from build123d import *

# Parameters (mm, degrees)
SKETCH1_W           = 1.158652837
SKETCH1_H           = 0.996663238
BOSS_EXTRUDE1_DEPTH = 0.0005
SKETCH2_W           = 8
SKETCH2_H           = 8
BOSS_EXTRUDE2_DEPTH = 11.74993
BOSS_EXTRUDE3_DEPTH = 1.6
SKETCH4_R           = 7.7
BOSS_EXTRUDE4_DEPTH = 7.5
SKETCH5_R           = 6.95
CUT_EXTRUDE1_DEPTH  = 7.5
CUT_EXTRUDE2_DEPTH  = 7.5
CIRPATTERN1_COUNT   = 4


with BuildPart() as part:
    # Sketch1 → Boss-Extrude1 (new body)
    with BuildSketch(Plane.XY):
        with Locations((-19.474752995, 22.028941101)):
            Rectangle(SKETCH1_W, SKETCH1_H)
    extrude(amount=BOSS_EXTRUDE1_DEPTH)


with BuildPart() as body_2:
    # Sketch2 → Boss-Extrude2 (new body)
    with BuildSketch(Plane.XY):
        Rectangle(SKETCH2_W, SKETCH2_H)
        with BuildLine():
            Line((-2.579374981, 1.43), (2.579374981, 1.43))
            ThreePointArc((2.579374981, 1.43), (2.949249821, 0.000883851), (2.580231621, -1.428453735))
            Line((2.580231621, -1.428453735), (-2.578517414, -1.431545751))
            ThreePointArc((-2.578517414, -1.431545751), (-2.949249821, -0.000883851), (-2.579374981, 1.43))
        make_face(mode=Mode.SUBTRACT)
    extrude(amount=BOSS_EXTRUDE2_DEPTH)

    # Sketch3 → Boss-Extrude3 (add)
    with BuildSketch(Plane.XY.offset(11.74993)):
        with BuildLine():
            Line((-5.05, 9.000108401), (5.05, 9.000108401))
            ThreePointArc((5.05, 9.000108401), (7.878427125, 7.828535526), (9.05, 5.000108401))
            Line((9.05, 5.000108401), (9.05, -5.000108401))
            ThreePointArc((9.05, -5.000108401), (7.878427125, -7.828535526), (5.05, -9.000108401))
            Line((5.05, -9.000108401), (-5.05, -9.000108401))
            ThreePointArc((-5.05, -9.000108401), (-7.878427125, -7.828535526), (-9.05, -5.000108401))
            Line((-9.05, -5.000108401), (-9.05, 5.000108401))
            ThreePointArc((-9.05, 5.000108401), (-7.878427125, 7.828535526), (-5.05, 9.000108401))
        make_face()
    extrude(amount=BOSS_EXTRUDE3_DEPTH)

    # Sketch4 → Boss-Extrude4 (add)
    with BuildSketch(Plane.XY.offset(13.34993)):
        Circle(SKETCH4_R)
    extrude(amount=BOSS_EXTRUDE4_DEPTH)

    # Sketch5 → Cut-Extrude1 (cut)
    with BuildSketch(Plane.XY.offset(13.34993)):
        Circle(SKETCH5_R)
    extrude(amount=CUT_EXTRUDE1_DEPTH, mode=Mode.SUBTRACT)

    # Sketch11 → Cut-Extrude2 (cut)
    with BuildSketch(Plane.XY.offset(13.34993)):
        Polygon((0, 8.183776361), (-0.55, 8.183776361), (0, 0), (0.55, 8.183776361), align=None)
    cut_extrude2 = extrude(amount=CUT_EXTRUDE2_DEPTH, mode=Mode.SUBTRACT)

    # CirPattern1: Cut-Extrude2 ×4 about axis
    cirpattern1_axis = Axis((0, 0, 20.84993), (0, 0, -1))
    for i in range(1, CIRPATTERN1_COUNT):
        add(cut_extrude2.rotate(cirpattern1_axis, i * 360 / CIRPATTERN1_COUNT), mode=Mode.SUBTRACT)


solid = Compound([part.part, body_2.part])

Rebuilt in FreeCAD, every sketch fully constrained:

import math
import FreeCAD as App
import Part
import Sketcher
Q = App.Units.Quantity

doc = App.newDocument("Part")
params = doc.addObject("Spreadsheet::Sheet", "Params")
for row, (alias, value) in enumerate([
    ("pad1_length", "0.0005 mm"),
    ("sketch2_width", "8 mm"),
    ("pad2_length", "11.74993 mm"),
    ("sketch3_radius", "4 mm"),
    ("sketch3_width", "10.1 mm"),
    ("pad3_length", "1.6 mm"),
    ("sketch4_diameter", "15.4 mm"),
    ("pad4_length", "7.5 mm"),
    ("sketch5_diameter", "13.9 mm"),
    ("pocket1_length", "7.5 mm"),
    ("sketch6_width", "1.1 mm"),
    ("pocket2_length", "7.5 mm"),
], start=1):
    params.set(f"A{row}", alias)
    params.set(f"B{row}", "=" + value)
    params.setAlias(f"B{row}", alias)

body = doc.addObject("PartDesign::Body", "Body")

sketch1 = body.newObject("Sketcher::SketchObject", "Sketch")
sketch1.AttachmentSupport = (doc.getObject("XY_Plane"), [""])
sketch1.MapMode = "FlatFace"
sketch1.addGeometry(Part.LineSegment(App.Vector(-20.1, 22.5, 0), App.Vector(-20.1, 21.5, 0)), False)
sketch1.addGeometry(Part.LineSegment(App.Vector(-20.1, 21.5, 0), App.Vector(-18.9, 21.5, 0)), False)
sketch1.addGeometry(Part.LineSegment(App.Vector(-18.9, 21.5, 0), App.Vector(-18.9, 22.5, 0)), False)
sketch1.addGeometry(Part.LineSegment(App.Vector(-18.9, 22.5, 0), App.Vector(-20.1, 22.5, 0)), False)
sketch1.addConstraint(Sketcher.Constraint("Coincident", 0, 2, 1, 1))
sketch1.addConstraint(Sketcher.Constraint("Coincident", 1, 2, 2, 1))
sketch1.addConstraint(Sketcher.Constraint("Coincident", 2, 2, 3, 1))
sketch1.addConstraint(Sketcher.Constraint("Coincident", 3, 2, 0, 1))
sketch1.addConstraint(Sketcher.Constraint("Vertical", 0))
sketch1.addConstraint(Sketcher.Constraint("Horizontal", 1))
sketch1.addConstraint(Sketcher.Constraint("Vertical", 2))
sketch1.addConstraint(Sketcher.Constraint("Horizontal", 3))
sketch1.addConstraint(Sketcher.Constraint("DistanceX", 1, 1, 1, 2, Q("1.158653 mm")))
sketch1.addConstraint(Sketcher.Constraint("DistanceY", 0, 2, 0, 1, Q("0.996663 mm")))
sketch1.addConstraint(Sketcher.Constraint("DistanceX", 0, 2, -1, 1, Q("20.054079 mm")))
sketch1.addConstraint(Sketcher.Constraint("DistanceY", -1, 1, 0, 2, Q("21.530609 mm")))
pad1 = body.newObject("PartDesign::Pad", "Pad")
pad1.Profile = sketch1
pad1.setExpression("Length", "Params.pad1_length")
body2 = doc.addObject("PartDesign::Body", "Body001")

sketch2 = body2.newObject("Sketcher::SketchObject", "Sketch001")
sketch2.AttachmentSupport = (doc.getObject("XY_Plane001"), [""])
sketch2.MapMode = "FlatFace"
sketch2.addGeometry(Part.LineSegment(App.Vector(-4, 4, 0), App.Vector(-4, -4, 0)), False)
sketch2.addGeometry(Part.LineSegment(App.Vector(-4, -4, 0), App.Vector(4, -4, 0)), False)
sketch2.addGeometry(Part.LineSegment(App.Vector(4, -4, 0), App.Vector(4, 4, 0)), False)
sketch2.addGeometry(Part.LineSegment(App.Vector(4, 4, 0), App.Vector(-4, 4, 0)), False)
sketch2.addGeometry(Part.ArcOfCircle(Part.Circle(App.Vector(0, 0, 0), App.Vector(0, 0, 1), 2.9), math.radians(151), math.radians(209)), False)
sketch2.addGeometry(Part.LineSegment(App.Vector(-2.6, 1.4, 0), App.Vector(2.6, 1.4, 0)), False)
sketch2.addGeometry(Part.ArcOfCircle(Part.Circle(App.Vector(0, 0, 0), App.Vector(0, 0, 1), 2.9), math.radians(-29), math.radians(29)), False)
sketch2.addGeometry(Part.LineSegment(App.Vector(2.6, -1.4, 0), App.Vector(-2.6, -1.4, 0)), False)
sketch2.addConstraint(Sketcher.Constraint("Coincident", 0, 2, 1, 1))
sketch2.addConstraint(Sketcher.Constraint("Coincident", 1, 2, 2, 1))
sketch2.addConstraint(Sketcher.Constraint("Coincident", 2, 2, 3, 1))
sketch2.addConstraint(Sketcher.Constraint("Coincident", 3, 2, 0, 1))
sketch2.addConstraint(Sketcher.Constraint("Coincident", 4, 1, 5, 1))
sketch2.addConstraint(Sketcher.Constraint("Coincident", 5, 2, 6, 2))
sketch2.addConstraint(Sketcher.Constraint("Coincident", 6, 1, 7, 1))
sketch2.addConstraint(Sketcher.Constraint("Coincident", 7, 2, 4, 2))
sketch2.addConstraint(Sketcher.Constraint("Vertical", 0))
sketch2.addConstraint(Sketcher.Constraint("Horizontal", 1))
sketch2.addConstraint(Sketcher.Constraint("Vertical", 2))
sketch2.addConstraint(Sketcher.Constraint("Horizontal", 3))
sketch2.addConstraint(Sketcher.Constraint("Horizontal", 5))
sketch2.addConstraint(Sketcher.Constraint("Coincident", 4, 3, -1, 1))
sketch2.addConstraint(Sketcher.Constraint("Coincident", 6, 3, -1, 1))
sketch2.addConstraint(Sketcher.Constraint("Equal", 4, 6))
sketch2.addConstraint(Sketcher.Constraint("Symmetric", 0, 2, 2, 2, -1, 1))
sketch2.addConstraint(Sketcher.Constraint("Equal", 3, 0))
sketch2.addConstraint(Sketcher.Constraint("DistanceX", 1, 1, 1, 2, Q("8 mm")))
sketch2.addConstraint(Sketcher.Constraint("DistanceY", -1, 1, 4, 1, Q("1.43 mm")))
sketch2.addConstraint(Sketcher.Constraint("Radius", 4, Q("2.94925 mm")))
sketch2.addConstraint(Sketcher.Constraint("Distance", 7, Q("5.15875 mm")))
sketch2.addConstraint(Sketcher.Constraint("DistanceX", -1, 1, 6, 1, Q("2.580232 mm")))
sketch2.setExpression("Constraints[18]", "Params.sketch2_width")
pad2 = body2.newObject("PartDesign::Pad", "Pad001")
pad2.Profile = sketch2
pad2.setExpression("Length", "Params.pad2_length")

sketch3 = body2.newObject("Sketcher::SketchObject", "Sketch002")
sketch3.AttachmentSupport = (doc.getObject("XY_Plane001"), [""])
sketch3.MapMode = "FlatFace"
sketch3.AttachmentOffset = App.Placement(App.Vector(0, 0, 11.74993), App.Rotation())
sketch3.addGeometry(Part.LineSegment(App.Vector(5, 9, 0), App.Vector(-5, 9, 0)), False)
sketch3.addGeometry(Part.ArcOfCircle(Part.Circle(App.Vector(-5.1, 5, 0), App.Vector(0, 0, 1), 4), math.radians(90), math.radians(180)), False)
sketch3.addGeometry(Part.LineSegment(App.Vector(-9.1, 5, 0), App.Vector(-9.1, -5, 0)), False)
sketch3.addGeometry(Part.ArcOfCircle(Part.Circle(App.Vector(-5.1, -5, 0), App.Vector(0, 0, 1), 4), math.radians(180), math.radians(270)), False)
sketch3.addGeometry(Part.LineSegment(App.Vector(-5, -9, 0), App.Vector(5, -9, 0)), False)
sketch3.addGeometry(Part.ArcOfCircle(Part.Circle(App.Vector(5.1, -5, 0), App.Vector(0, 0, 1), 4), math.radians(-90), math.radians(0)), False)
sketch3.addGeometry(Part.LineSegment(App.Vector(9.1, -5, 0), App.Vector(9.1, 5, 0)), False)
sketch3.addGeometry(Part.ArcOfCircle(Part.Circle(App.Vector(5.1, 5, 0), App.Vector(0, 0, 1), 4), math.radians(0), math.radians(90)), False)
sketch3.addConstraint(Sketcher.Constraint("Tangent", 0, 2, 1, 1))
sketch3.addConstraint(Sketcher.Constraint("Tangent", 1, 2, 2, 1))
sketch3.addConstraint(Sketcher.Constraint("Tangent", 2, 2, 3, 1))
sketch3.addConstraint(Sketcher.Constraint("Tangent", 3, 2, 4, 1))
sketch3.addConstraint(Sketcher.Constraint("Tangent", 4, 2, 5, 1))
sketch3.addConstraint(Sketcher.Constraint("Tangent", 5, 2, 6, 1))
sketch3.addConstraint(Sketcher.Constraint("Tangent", 6, 2, 7, 1))
sketch3.addConstraint(Sketcher.Constraint("Tangent", 7, 2, 0, 1))
sketch3.addConstraint(Sketcher.Constraint("Horizontal", 0))
sketch3.addConstraint(Sketcher.Constraint("Vertical", 2))
sketch3.addConstraint(Sketcher.Constraint("Horizontal", 4))
sketch3.addConstraint(Sketcher.Constraint("Vertical", 6))
sketch3.addConstraint(Sketcher.Constraint("Equal", 1, 3))
sketch3.addConstraint(Sketcher.Constraint("Equal", 3, 5))
sketch3.addConstraint(Sketcher.Constraint("Equal", 5, 7))
sketch3.addConstraint(Sketcher.Constraint("Symmetric", 1, 3, 5, 3, -1, 1))
sketch3.addConstraint(Sketcher.Constraint("Radius", 1, Q("4 mm")))
sketch3.addConstraint(Sketcher.Constraint("DistanceX", 0, 2, 0, 1, Q("10.1 mm")))
sketch3.addConstraint(Sketcher.Constraint("DistanceY", 2, 2, 2, 1, Q("10.000217 mm")))
sketch3.setExpression("Constraints[16]", "Params.sketch3_radius")
sketch3.setExpression("Constraints[17]", "Params.sketch3_width")
pad3 = body2.newObject("PartDesign::Pad", "Pad002")
pad3.Profile = sketch3
pad3.setExpression("Length", "Params.pad3_length")

sketch4 = body2.newObject("Sketcher::SketchObject", "Sketch003")
sketch4.AttachmentSupport = (doc.getObject("XY_Plane001"), [""])
sketch4.MapMode = "FlatFace"
sketch4.AttachmentOffset = App.Placement(App.Vector(0, 0, 13.34993), App.Rotation())
sketch4.addGeometry(Part.Circle(App.Vector(0, 0, 0), App.Vector(0, 0, 1), 8), False)
sketch4.addConstraint(Sketcher.Constraint("Coincident", 0, 3, -1, 1))
sketch4.addConstraint(Sketcher.Constraint("Diameter", 0, Q("15.4 mm")))
sketch4.setExpression("Constraints[1]", "Params.sketch4_diameter")
pad4 = body2.newObject("PartDesign::Pad", "Pad003")
pad4.Profile = sketch4
pad4.setExpression("Length", "Params.pad4_length")

sketch5 = body2.newObject("Sketcher::SketchObject", "Sketch004")
sketch5.AttachmentSupport = (doc.getObject("XY_Plane001"), [""])
sketch5.MapMode = "FlatFace"
sketch5.AttachmentOffset = App.Placement(App.Vector(0, 0, 13.34993), App.Rotation())
sketch5.addGeometry(Part.Circle(App.Vector(0, 0, 0), App.Vector(0, 0, 1), 7), False)
sketch5.addConstraint(Sketcher.Constraint("Coincident", 0, 3, -1, 1))
sketch5.addConstraint(Sketcher.Constraint("Diameter", 0, Q("13.9 mm")))
sketch5.setExpression("Constraints[1]", "Params.sketch5_diameter")
pocket1 = body2.newObject("PartDesign::Pocket", "Pocket")
pocket1.Profile = sketch5
pocket1.setExpression("Length", "Params.pocket1_length")
pocket1.Reversed = True

sketch6 = body2.newObject("Sketcher::SketchObject", "Sketch005")
sketch6.AttachmentSupport = (doc.getObject("XY_Plane001"), [""])
sketch6.MapMode = "FlatFace"
sketch6.AttachmentOffset = App.Placement(App.Vector(0, 0, 13.34993), App.Rotation())
sketch6.addGeometry(Part.LineSegment(App.Vector(-0.6, 8.2, 0), App.Vector(0, 0, 0)), False)
sketch6.addGeometry(Part.LineSegment(App.Vector(0, 0, 0), App.Vector(0.6, 8.2, 0)), False)
sketch6.addGeometry(Part.LineSegment(App.Vector(0.6, 8.2, 0), App.Vector(-0.6, 8.2, 0)), False)
sketch6.addConstraint(Sketcher.Constraint("Coincident", 0, 2, 1, 1))
sketch6.addConstraint(Sketcher.Constraint("Coincident", 1, 2, 2, 1))
sketch6.addConstraint(Sketcher.Constraint("Coincident", 2, 2, 0, 1))
sketch6.addConstraint(Sketcher.Constraint("Horizontal", 2))
sketch6.addConstraint(Sketcher.Constraint("Coincident", 0, 2, -1, 1))
sketch6.addConstraint(Sketcher.Constraint("Equal", 0, 1))
sketch6.addConstraint(Sketcher.Constraint("DistanceX", 2, 2, 2, 1, Q("1.1 mm")))
sketch6.addConstraint(Sketcher.Constraint("Distance", 0, Q("8.202237 mm")))
sketch6.setExpression("Constraints[6]", "Params.sketch6_width")
pocket2 = body2.newObject("PartDesign::Pocket", "Pocket001")
pocket2.Profile = sketch6
pocket2.setExpression("Length", "Params.pocket2_length")
pocket2.Reversed = True
doc.recompute()

polarpattern = body2.newObject("PartDesign::PolarPattern", "PolarPattern")
polarpattern.Originals = [pocket2]
polarpattern.Axis = (doc.getObject("Z_Axis001"), [""])
polarpattern.Angle = 360
polarpattern.Occurrences = 4
body2.Tip = polarpattern

doc.recompute()
